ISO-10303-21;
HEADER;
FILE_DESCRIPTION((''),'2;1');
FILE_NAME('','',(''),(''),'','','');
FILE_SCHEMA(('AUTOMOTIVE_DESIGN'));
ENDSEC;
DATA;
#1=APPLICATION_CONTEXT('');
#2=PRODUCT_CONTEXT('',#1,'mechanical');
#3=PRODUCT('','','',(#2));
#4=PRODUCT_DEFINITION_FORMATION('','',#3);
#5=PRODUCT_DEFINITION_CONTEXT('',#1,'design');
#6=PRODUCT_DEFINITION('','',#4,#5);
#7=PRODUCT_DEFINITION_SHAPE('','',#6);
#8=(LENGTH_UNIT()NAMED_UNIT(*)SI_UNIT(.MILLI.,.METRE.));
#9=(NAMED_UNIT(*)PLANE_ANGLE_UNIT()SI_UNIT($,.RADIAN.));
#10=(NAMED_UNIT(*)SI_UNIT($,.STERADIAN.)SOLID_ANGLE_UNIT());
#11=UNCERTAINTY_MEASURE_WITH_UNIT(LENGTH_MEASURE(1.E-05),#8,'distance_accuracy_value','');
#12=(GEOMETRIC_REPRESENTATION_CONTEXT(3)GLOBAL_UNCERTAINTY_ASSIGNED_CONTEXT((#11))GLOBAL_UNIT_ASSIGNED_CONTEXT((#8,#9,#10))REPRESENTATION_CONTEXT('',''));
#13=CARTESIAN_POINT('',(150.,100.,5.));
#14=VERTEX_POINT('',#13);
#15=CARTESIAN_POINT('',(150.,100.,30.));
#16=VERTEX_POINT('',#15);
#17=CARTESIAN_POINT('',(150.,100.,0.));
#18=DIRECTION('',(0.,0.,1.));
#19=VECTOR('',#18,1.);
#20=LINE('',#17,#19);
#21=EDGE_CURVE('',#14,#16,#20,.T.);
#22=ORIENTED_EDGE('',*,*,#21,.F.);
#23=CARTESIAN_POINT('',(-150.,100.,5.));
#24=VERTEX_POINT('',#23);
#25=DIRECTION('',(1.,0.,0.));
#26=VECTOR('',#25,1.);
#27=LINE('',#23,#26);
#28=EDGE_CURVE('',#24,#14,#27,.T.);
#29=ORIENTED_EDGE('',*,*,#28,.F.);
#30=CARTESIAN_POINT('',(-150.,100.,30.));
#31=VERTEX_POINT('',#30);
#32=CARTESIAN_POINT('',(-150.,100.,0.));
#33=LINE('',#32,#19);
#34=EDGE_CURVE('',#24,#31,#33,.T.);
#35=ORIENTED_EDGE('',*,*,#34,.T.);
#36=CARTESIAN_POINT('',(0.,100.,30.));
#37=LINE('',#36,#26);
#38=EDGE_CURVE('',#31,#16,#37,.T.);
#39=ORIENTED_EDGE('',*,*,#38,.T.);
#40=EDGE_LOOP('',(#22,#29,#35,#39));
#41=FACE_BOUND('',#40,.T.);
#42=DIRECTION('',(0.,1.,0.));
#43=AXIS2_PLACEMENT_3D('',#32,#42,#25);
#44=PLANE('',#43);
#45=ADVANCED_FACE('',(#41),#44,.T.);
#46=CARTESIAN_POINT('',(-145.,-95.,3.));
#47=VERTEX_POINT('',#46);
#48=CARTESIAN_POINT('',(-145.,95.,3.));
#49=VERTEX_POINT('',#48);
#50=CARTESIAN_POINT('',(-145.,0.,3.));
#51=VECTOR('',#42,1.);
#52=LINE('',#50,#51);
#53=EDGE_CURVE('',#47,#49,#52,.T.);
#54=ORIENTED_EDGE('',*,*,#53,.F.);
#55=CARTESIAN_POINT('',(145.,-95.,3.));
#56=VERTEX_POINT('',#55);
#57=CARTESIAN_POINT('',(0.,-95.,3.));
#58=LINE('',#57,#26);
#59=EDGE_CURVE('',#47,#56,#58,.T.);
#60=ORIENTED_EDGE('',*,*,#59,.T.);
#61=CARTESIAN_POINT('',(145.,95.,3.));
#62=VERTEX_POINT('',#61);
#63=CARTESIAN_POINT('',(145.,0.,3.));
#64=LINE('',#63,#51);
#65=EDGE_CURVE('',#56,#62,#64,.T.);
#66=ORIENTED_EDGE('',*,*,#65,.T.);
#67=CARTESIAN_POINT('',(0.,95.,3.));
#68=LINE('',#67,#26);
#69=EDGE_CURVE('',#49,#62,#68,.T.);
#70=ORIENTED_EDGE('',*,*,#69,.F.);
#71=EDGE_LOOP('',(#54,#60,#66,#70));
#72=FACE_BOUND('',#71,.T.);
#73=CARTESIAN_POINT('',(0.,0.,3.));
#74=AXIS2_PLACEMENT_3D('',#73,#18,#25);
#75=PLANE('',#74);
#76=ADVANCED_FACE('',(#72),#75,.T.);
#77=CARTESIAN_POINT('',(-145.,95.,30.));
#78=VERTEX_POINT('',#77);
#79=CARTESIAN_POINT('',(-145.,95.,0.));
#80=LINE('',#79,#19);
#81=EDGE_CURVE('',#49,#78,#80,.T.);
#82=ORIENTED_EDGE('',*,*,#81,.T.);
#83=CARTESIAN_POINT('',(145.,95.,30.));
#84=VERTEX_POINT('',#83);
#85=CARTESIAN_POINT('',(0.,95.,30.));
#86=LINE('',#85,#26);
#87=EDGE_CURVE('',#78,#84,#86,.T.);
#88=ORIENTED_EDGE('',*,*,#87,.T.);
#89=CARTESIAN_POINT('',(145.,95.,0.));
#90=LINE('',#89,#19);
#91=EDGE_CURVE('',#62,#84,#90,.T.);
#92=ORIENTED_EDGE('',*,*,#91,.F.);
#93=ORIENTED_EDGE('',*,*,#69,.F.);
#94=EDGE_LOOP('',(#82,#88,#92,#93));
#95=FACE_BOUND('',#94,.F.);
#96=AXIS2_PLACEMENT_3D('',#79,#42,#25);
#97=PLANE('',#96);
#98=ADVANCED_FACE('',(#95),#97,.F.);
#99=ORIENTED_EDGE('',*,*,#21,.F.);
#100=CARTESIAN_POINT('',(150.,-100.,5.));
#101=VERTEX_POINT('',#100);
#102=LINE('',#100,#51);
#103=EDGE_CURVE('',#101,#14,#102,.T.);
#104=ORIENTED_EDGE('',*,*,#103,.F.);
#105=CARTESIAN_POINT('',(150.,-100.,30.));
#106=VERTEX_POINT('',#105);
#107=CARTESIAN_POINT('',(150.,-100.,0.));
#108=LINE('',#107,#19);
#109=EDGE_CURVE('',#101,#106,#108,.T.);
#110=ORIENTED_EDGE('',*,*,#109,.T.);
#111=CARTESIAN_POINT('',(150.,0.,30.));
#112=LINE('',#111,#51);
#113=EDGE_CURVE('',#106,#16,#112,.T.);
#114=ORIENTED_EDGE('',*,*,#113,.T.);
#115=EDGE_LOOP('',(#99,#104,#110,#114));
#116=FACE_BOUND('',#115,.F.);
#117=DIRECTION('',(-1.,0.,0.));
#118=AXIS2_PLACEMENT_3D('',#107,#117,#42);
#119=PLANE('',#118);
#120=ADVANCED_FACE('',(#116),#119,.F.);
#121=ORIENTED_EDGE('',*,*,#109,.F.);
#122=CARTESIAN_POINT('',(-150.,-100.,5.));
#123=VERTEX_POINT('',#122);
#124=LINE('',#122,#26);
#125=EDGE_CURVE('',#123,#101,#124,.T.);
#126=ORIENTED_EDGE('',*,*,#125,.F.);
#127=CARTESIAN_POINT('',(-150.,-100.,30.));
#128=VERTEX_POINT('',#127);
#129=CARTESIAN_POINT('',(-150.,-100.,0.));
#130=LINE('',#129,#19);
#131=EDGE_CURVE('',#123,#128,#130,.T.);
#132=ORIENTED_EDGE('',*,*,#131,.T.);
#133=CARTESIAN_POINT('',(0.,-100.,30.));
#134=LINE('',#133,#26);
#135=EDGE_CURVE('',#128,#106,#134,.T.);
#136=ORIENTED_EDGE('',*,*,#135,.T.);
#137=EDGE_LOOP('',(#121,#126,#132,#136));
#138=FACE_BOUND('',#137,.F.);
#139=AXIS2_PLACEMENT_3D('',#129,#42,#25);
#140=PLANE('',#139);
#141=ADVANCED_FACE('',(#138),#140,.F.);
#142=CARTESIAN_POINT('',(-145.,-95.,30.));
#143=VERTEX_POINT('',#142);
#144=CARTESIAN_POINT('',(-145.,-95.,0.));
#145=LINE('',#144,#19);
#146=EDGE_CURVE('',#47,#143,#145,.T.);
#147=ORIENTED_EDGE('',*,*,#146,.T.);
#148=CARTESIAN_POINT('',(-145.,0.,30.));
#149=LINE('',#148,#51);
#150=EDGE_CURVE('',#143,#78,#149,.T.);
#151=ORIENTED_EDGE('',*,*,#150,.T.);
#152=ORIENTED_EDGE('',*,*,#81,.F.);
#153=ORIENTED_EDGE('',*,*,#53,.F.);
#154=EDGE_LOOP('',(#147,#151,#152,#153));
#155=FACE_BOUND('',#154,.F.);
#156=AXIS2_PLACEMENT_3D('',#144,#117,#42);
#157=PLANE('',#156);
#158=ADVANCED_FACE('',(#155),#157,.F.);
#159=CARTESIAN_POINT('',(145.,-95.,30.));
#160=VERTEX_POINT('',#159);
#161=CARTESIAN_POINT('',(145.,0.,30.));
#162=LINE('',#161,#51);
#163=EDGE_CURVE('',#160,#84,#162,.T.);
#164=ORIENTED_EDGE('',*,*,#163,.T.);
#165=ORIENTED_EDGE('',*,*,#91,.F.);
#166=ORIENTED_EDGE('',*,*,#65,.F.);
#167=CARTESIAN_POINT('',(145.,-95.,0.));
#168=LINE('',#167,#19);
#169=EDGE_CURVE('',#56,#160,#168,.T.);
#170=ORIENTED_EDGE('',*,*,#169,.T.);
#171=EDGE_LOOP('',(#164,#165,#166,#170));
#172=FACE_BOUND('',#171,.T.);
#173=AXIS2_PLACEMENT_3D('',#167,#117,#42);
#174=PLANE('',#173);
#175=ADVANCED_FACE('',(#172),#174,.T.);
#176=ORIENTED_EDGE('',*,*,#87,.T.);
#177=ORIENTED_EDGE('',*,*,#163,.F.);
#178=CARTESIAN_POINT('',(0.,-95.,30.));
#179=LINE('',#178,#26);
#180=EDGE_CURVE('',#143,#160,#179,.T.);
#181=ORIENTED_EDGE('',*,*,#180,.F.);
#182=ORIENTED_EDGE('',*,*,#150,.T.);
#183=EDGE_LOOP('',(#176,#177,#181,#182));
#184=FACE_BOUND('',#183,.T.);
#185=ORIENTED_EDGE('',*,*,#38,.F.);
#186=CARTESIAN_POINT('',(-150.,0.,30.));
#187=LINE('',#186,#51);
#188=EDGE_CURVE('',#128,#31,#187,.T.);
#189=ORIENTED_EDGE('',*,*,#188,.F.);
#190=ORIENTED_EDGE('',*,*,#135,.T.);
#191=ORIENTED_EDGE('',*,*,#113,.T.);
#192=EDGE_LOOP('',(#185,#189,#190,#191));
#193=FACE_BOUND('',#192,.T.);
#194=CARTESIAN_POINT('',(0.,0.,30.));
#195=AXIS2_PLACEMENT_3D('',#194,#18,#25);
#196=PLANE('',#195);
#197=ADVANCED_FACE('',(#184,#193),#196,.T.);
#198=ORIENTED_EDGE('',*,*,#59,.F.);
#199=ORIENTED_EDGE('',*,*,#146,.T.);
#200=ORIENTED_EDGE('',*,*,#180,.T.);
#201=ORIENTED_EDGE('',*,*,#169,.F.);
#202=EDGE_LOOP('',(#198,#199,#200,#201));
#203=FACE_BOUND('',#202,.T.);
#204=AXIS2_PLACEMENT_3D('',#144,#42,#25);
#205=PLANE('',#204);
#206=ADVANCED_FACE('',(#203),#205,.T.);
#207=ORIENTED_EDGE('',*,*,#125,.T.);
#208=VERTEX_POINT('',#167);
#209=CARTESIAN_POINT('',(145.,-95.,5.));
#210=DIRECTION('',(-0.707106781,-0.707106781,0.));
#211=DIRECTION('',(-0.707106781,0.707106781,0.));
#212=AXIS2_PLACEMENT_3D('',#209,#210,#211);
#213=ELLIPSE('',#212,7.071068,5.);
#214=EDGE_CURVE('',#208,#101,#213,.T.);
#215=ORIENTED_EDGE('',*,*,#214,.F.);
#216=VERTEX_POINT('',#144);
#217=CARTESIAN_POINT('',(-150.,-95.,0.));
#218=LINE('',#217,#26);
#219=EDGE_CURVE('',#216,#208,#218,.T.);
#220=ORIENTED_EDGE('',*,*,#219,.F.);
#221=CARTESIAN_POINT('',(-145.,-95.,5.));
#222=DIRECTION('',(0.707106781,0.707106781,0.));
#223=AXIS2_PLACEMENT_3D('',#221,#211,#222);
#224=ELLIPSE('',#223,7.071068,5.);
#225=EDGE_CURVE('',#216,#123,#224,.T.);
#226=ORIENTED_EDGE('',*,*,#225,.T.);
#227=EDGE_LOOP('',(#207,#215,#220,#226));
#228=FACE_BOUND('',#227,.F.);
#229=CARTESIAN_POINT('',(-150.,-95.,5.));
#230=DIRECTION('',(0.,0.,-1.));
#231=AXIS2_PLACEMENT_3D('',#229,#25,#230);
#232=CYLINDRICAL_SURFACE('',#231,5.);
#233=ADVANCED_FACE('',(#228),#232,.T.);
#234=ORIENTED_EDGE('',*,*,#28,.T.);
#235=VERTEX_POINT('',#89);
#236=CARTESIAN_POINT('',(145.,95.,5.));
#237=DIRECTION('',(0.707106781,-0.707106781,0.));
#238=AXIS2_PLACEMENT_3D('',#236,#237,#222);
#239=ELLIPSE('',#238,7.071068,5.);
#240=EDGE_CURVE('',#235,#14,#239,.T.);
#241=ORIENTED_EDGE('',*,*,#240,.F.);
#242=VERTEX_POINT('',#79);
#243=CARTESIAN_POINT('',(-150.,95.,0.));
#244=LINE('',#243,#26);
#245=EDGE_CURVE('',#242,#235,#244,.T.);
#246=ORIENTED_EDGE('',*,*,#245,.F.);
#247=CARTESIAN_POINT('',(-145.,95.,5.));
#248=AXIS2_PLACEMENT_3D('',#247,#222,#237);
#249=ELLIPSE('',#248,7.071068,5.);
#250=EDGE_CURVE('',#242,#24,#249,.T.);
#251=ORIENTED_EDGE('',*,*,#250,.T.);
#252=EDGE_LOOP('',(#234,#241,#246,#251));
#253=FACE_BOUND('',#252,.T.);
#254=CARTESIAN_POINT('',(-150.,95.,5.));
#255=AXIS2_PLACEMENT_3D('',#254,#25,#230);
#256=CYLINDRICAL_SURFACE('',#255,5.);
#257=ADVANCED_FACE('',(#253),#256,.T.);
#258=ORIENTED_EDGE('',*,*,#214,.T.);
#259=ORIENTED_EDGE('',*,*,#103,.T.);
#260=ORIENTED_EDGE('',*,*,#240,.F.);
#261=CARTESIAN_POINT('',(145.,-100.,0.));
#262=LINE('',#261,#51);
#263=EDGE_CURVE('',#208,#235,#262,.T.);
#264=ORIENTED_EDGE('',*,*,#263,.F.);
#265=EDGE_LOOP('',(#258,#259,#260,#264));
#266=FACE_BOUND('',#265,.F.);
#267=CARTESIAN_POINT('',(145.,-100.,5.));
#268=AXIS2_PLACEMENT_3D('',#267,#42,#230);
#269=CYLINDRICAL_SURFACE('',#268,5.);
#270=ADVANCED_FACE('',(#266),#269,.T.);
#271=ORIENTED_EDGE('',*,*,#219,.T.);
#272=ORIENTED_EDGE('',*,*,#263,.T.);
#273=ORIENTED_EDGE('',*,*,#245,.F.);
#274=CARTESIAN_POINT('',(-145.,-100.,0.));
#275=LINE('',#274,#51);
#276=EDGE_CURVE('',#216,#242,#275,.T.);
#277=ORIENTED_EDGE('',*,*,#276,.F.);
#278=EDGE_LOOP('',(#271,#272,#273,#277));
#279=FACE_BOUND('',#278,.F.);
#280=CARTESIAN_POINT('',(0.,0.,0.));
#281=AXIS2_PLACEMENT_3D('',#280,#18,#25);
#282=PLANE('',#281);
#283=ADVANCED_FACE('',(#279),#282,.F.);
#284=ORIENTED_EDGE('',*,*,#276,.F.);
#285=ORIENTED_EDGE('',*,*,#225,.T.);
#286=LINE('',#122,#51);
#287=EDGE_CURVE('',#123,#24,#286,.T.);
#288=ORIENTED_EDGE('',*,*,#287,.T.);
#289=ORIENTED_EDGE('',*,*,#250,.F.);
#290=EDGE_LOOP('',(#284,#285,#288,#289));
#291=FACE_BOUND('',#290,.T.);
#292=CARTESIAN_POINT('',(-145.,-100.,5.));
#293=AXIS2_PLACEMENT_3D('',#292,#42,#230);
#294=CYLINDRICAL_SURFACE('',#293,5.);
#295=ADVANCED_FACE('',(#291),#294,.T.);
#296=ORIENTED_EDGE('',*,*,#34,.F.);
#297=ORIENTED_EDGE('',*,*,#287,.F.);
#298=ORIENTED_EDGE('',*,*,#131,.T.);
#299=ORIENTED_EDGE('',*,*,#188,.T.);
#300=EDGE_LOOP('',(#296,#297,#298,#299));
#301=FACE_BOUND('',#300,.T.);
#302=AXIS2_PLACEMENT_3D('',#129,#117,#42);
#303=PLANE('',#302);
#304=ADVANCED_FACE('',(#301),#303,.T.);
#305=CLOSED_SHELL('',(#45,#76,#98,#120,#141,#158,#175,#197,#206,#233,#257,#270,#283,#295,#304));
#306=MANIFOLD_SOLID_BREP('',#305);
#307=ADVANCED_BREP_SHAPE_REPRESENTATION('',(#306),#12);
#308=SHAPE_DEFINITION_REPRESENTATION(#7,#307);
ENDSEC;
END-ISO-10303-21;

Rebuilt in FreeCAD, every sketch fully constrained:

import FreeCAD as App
import Part
import Sketcher


def edges_at(feature, points):
    """Names of the edges that pass closest to the given points."""
    edges = feature.Shape.Edges
    near = lambda p: min(range(len(edges)), key=lambda i: edges[i].distToShape(Part.Vertex(*p))[0])
    return sorted({f"Edge{near(p) + 1}" for p in points})

doc = App.newDocument("Part")
body = doc.addObject("PartDesign::Body", "Body")

# Sketch on XY plane
sketch1 = body.newObject("Sketcher::SketchObject", "Sketch")
sketch1.AttachmentSupport = (doc.getObject("XY_Plane"), [""])
sketch1.MapMode = "FlatFace"
sketch1.addGeometry(Part.LineSegment(App.Vector(-150, 100, 0), App.Vector(-150, -100, 0)), False)
sketch1.addGeometry(Part.LineSegment(App.Vector(-150, -100, 0), App.Vector(150, -100, 0)), False)
sketch1.addGeometry(Part.LineSegment(App.Vector(150, -100, 0), App.Vector(150, 100, 0)), False)
sketch1.addGeometry(Part.LineSegment(App.Vector(150, 100, 0), App.Vector(-150, 100, 0)), False)
sketch1.addGeometry(Part.LineSegment(App.Vector(145, -95, 0), App.Vector(-145, -95, 0)), False)
sketch1.addGeometry(Part.LineSegment(App.Vector(-145, -95, 0), App.Vector(-145, 95, 0)), False)
sketch1.addGeometry(Part.LineSegment(App.Vector(-145, 95, 0), App.Vector(145, 95, 0)), False)
sketch1.addGeometry(Part.LineSegment(App.Vector(145, 95, 0), App.Vector(145, -95, 0)), False)
sketch1.addConstraint(Sketcher.Constraint("Coincident", 0, 2, 1, 1))
sketch1.addConstraint(Sketcher.Constraint("Coincident", 1, 2, 2, 1))
sketch1.addConstraint(Sketcher.Constraint("Coincident", 2, 2, 3, 1))
sketch1.addConstraint(Sketcher.Constraint("Coincident", 3, 2, 0, 1))
sketch1.addConstraint(Sketcher.Constraint("Coincident", 4, 2, 5, 1))
sketch1.addConstraint(Sketcher.Constraint("Coincident", 5, 2, 6, 1))
sketch1.addConstraint(Sketcher.Constraint("Coincident", 6, 2, 7, 1))
sketch1.addConstraint(Sketcher.Constraint("Coincident", 7, 2, 4, 1))
sketch1.addConstraint(Sketcher.Constraint("Vertical", 0))
sketch1.addConstraint(Sketcher.Constraint("Horizontal", 1))
sketch1.addConstraint(Sketcher.Constraint("Vertical", 2))
sketch1.addConstraint(Sketcher.Constraint("Horizontal", 3))
sketch1.addConstraint(Sketcher.Constraint("Horizontal", 4))
sketch1.addConstraint(Sketcher.Constraint("Vertical", 5))
sketch1.addConstraint(Sketcher.Constraint("Horizontal", 6))
sketch1.addConstraint(Sketcher.Constraint("Vertical", 7))
sketch1.addConstraint(Sketcher.Constraint("Symmetric", 0, 2, 2, 2, -1, 1))
sketch1.addConstraint(Sketcher.Constraint("Symmetric", 4, 2, 6, 2, -1, 1))
sketch1.addConstraint(Sketcher.Constraint("DistanceX", 1, 1, 1, 2, 300.0))
sketch1.addConstraint(Sketcher.Constraint("DistanceX", 4, 2, 4, 1, 290.0))
sketch1.addConstraint(Sketcher.Constraint("DistanceY", 0, 2, 0, 1, 200.0))
sketch1.addConstraint(Sketcher.Constraint("DistanceY", 5, 1, 5, 2, 190.0))
pad1 = body.newObject("PartDesign::Pad", "Pad")
pad1.Profile = sketch1
pad1.Length = 30

# Sketch on XY plane
sketch2 = body.newObject("Sketcher::SketchObject", "Sketch001")
sketch2.AttachmentSupport = (doc.getObject("XY_Plane"), [""])
sketch2.MapMode = "FlatFace"
sketch2.addGeometry(Part.LineSegment(App.Vector(-147.5, 97.5, 0), App.Vector(-147.5, -97.5, 0)), False)
sketch2.addGeometry(Part.LineSegment(App.Vector(-147.5, -97.5, 0), App.Vector(147.5, -97.5, 0)), False)
sketch2.addGeometry(Part.LineSegment(App.Vector(147.5, -97.5, 0), App.Vector(147.5, 97.5, 0)), False)
sketch2.addGeometry(Part.LineSegment(App.Vector(147.5, 97.5, 0), App.Vector(-147.5, 97.5, 0)), False)
sketch2.addGeometry(Part.LineSegment(App.Vector(145, -95, 0), App.Vector(-145, -95, 0)), False)
sketch2.addGeometry(Part.LineSegment(App.Vector(-145, -95, 0), App.Vector(-145, 95, 0)), False)
sketch2.addGeometry(Part.LineSegment(App.Vector(-145, 95, 0), App.Vector(145, 95, 0)), False)
sketch2.addGeometry(Part.LineSegment(App.Vector(145, 95, 0), App.Vector(145, -95, 0)), False)
sketch2.addConstraint(Sketcher.Constraint("Coincident", 0, 2, 1, 1))
sketch2.addConstraint(Sketcher.Constraint("Coincident", 1, 2, 2, 1))
sketch2.addConstraint(Sketcher.Constraint("Coincident", 2, 2, 3, 1))
sketch2.addConstraint(Sketcher.Constraint("Coincident", 3, 2, 0, 1))
sketch2.addConstraint(Sketcher.Constraint("Coincident", 4, 2, 5, 1))
sketch2.addConstraint(Sketcher.Constraint("Coincident", 5, 2, 6, 1))
sketch2.addConstraint(Sketcher.Constraint("Coincident", 6, 2, 7, 1))
sketch2.addConstraint(Sketcher.Constraint("Coincident", 7, 2, 4, 1))
sketch2.addConstraint(Sketcher.Constraint("Vertical", 0))
sketch2.addConstraint(Sketcher.Constraint("Horizontal", 1))
sketch2.addConstraint(Sketcher.Constraint("Vertical", 2))
sketch2.addConstraint(Sketcher.Constraint("Horizontal", 3))
sketch2.addConstraint(Sketcher.Constraint("Horizontal", 4))
sketch2.addConstraint(Sketcher.Constraint("Vertical", 5))
sketch2.addConstraint(Sketcher.Constraint("Horizontal", 6))
sketch2.addConstraint(Sketcher.Constraint("Vertical", 7))
sketch2.addConstraint(Sketcher.Constraint("Symmetric", 0, 2, 2, 2, -1, 1))
sketch2.addConstraint(Sketcher.Constraint("Symmetric", 4, 2, 6, 2, -1, 1))
sketch2.addConstraint(Sketcher.Constraint("DistanceX", 1, 1, 1, 2, 295.0))
sketch2.addConstraint(Sketcher.Constraint("DistanceX", 4, 2, 4, 1, 290.0))
sketch2.addConstraint(Sketcher.Constraint("DistanceY", 0, 2, 0, 1, 195.0))
sketch2.addConstraint(Sketcher.Constraint("DistanceY", 5, 1, 5, 2, 190.0))
pocket1 = body.newObject("PartDesign::Pocket", "Pocket")
pocket1.Profile = sketch2
pocket1.Length = 3
pocket1.Reversed = True

# Sketch on XY plane
sketch3 = body.newObject("Sketcher::SketchObject", "Sketch002")
sketch3.AttachmentSupport = (doc.getObject("XY_Plane"), [""])
sketch3.MapMode = "FlatFace"
sketch3.addGeometry(Part.LineSegment(App.Vector(-147.5, 97.5, 0), App.Vector(-147.5, -97.5, 0)), False)
sketch3.addGeometry(Part.LineSegment(App.Vector(-147.5, -97.5, 0), App.Vector(147.5, -97.5, 0)), False)
sketch3.addGeometry(Part.LineSegment(App.Vector(147.5, -97.5, 0), App.Vector(147.5, 97.5, 0)), False)
sketch3.addGeometry(Part.LineSegment(App.Vector(147.5, 97.5, 0), App.Vector(-147.5, 97.5, 0)), False)
sketch3.addConstraint(Sketcher.Constraint("Coincident", 0, 2, 1, 1))
sketch3.addConstraint(Sketcher.Constraint("Coincident", 1, 2, 2, 1))
sketch3.addConstraint(Sketcher.Constraint("Coincident", 2, 2, 3, 1))
sketch3.addConstraint(Sketcher.Constraint("Coincident", 3, 2, 0, 1))
sketch3.addConstraint(Sketcher.Constraint("Vertical", 0))
sketch3.addConstraint(Sketcher.Constraint("Horizontal", 1))
sketch3.addConstraint(Sketcher.Constraint("Vertical", 2))
sketch3.addConstraint(Sketcher.Constraint("Horizontal", 3))
sketch3.addConstraint(Sketcher.Constraint("Symmetric", 0, 2, 2, 2, -1, 1))
sketch3.addConstraint(Sketcher.Constraint("DistanceX", 1, 1, 1, 2, 295.0))
sketch3.addConstraint(Sketcher.Constraint("DistanceY", 0, 2, 0, 1, 195.0))
pad2 = body.newObject("PartDesign::Pad", "Pad001")
pad2.Profile = sketch3
pad2.Length = 3
doc.recompute()

fillet = body.newObject("PartDesign::Fillet", "Fillet")
fillet.Base = (pad2, edges_at(pad2, [
    (150, 0, 0),
    (0, 100, 0),
    (-150, 0, 0),
    (0, -100, 0),
]))
fillet.Radius = 5

doc.recompute()
